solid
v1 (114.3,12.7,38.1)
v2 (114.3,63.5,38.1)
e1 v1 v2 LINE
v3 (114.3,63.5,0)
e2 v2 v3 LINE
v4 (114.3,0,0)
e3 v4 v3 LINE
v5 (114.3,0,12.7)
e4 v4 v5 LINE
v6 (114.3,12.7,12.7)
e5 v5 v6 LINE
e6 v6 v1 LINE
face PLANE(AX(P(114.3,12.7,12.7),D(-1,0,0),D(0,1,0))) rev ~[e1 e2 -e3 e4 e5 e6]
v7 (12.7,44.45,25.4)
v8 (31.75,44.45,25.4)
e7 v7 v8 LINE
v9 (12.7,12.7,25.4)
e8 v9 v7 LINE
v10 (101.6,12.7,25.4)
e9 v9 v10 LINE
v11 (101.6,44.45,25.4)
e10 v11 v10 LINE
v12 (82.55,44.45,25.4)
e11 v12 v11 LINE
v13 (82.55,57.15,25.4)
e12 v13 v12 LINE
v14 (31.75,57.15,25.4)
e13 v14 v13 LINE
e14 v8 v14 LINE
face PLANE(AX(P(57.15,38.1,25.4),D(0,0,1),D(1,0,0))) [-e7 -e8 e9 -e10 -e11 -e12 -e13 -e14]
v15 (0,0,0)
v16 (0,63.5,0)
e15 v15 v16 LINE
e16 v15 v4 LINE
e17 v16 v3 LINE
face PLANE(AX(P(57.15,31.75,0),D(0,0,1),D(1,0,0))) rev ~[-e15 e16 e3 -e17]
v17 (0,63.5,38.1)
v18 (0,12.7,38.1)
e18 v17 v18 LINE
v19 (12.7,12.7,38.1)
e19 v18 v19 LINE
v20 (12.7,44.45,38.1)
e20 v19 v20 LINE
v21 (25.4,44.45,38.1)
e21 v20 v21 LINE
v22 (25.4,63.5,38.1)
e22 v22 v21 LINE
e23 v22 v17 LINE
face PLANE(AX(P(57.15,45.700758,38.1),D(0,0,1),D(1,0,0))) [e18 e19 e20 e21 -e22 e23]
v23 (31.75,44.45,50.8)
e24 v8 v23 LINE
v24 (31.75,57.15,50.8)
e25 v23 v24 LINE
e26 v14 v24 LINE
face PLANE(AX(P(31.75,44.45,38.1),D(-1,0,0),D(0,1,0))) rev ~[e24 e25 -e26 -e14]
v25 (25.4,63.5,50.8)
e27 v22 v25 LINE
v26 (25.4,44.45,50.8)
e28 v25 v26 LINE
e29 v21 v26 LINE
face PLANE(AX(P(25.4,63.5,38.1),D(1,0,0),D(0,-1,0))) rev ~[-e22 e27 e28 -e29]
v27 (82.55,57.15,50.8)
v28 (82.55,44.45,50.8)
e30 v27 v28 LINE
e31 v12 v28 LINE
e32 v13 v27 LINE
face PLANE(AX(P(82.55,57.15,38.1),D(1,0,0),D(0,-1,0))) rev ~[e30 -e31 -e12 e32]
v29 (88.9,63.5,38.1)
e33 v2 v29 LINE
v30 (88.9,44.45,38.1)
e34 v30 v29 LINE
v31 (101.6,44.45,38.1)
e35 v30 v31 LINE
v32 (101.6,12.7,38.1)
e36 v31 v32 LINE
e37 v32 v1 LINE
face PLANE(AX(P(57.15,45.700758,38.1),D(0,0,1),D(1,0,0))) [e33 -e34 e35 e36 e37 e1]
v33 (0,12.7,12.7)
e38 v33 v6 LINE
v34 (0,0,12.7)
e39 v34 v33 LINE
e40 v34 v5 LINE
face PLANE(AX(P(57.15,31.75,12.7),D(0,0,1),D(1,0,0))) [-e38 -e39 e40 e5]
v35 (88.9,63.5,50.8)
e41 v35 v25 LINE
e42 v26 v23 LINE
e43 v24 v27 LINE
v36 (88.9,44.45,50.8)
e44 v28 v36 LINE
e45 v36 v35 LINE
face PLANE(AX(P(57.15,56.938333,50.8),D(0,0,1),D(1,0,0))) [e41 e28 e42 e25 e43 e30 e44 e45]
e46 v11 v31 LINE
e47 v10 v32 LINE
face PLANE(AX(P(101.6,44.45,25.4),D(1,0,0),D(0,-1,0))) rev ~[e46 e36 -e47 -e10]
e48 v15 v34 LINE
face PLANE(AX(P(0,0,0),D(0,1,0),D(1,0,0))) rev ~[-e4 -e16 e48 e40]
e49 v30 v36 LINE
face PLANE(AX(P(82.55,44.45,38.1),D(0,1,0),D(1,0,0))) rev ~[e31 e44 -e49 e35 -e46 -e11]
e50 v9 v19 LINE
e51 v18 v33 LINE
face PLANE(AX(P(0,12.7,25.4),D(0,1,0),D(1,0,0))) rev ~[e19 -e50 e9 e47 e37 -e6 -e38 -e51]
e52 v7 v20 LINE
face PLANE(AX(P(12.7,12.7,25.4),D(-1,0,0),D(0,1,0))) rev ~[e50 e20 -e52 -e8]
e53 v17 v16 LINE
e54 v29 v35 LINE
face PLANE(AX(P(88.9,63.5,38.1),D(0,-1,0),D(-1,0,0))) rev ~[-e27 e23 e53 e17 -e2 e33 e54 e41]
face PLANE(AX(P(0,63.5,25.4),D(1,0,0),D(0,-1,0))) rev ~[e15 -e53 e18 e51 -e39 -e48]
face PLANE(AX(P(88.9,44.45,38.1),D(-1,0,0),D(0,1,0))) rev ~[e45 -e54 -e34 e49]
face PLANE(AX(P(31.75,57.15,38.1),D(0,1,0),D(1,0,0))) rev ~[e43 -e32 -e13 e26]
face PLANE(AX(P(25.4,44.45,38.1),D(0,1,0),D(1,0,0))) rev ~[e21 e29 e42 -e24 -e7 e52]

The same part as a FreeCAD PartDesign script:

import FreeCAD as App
import Part
import Sketcher

V = App.Vector
Q = App.Units.Quantity

doc = App.newDocument("Part")
body = doc.addObject("PartDesign::Body", "Body")

sketch1 = body.newObject("Sketcher::SketchObject", "Sketch")
sketch1.AttachmentSupport = (doc.getObject("XY_Plane"), [""])
sketch1.MapMode = "FlatFace"
sketch1.addGeometry([
    Part.LineSegment(V(0, 64, 0), V(0, 0, 0)),
    Part.LineSegment(V(0, 0, 0), V(114, 0, 0)),
    Part.LineSegment(V(114, 0, 0), V(114, 64, 0)),
    Part.LineSegment(V(114, 64, 0), V(0, 64, 0)),
], False)
sketch1.addConstraint([
    Sketcher.Constraint("Coincident", 0, 2, 1, 1),
    Sketcher.Constraint("Coincident", 1, 2, 2, 1),
    Sketcher.Constraint("Coincident", 2, 2, 3, 1),
    Sketcher.Constraint("Coincident", 3, 2, 0, 1),
    Sketcher.Constraint("Vertical", 0),
    Sketcher.Constraint("Horizontal", 1),
    Sketcher.Constraint("Vertical", 2),
    Sketcher.Constraint("Horizontal", 3),
    Sketcher.Constraint("Coincident", 0, 2, -1, 1),
    Sketcher.Constraint("DistanceX", 1, 1, 1, 2, Q("4.5 in")),
    Sketcher.Constraint("DistanceY", 0, 2, 0, 1, Q("2.5 in")),
])
pad1 = body.newObject("PartDesign::Pad", "Pad")
pad1.Profile = sketch1
pad1.Length = Q("0.5 in")

sketch2 = body.newObject("Sketcher::SketchObject", "Sketch001")
sketch2.AttachmentSupport = (doc.getObject("XY_Plane"), [""])
sketch2.MapMode = "FlatFace"
sketch2.AttachmentOffset = App.Placement(V(0, 0, 0.5 * 25.4), App.Rotation())
sketch2.addGeometry([
    Part.LineSegment(V(0, 64, 0), V(0, 13, 0)),
    Part.LineSegment(V(0, 13, 0), V(114, 13, 0)),
    Part.LineSegment(V(114, 13, 0), V(114, 64, 0)),
    Part.LineSegment(V(114, 64, 0), V(0, 64, 0)),
], False)
sketch2.addConstraint([
    Sketcher.Constraint("Coincident", 0, 2, 1, 1),
    Sketcher.Constraint("Coincident", 1, 2, 2, 1),
    Sketcher.Constraint("Coincident", 2, 2, 3, 1),
    Sketcher.Constraint("Coincident", 3, 2, 0, 1),
    Sketcher.Constraint("Vertical", 0),
    Sketcher.Constraint("Horizontal", 1),
    Sketcher.Constraint("Vertical", 2),
    Sketcher.Constraint("Horizontal", 3),
    Sketcher.Constraint("PointOnObject", 0, 2, -2),
    Sketcher.Constraint("DistanceY", 0, 2, 0, 1, Q("2 in")),
    Sketcher.Constraint("DistanceX", 1, 1, 1, 2, Q("4.5 in")),
    Sketcher.Constraint("DistanceY", -1, 1, 0, 2, Q("0.5 in")),
])
pad2 = body.newObject("PartDesign::Pad", "Pad001")
pad2.Profile = sketch2
pad2.Length = Q("0.5 in")

sketch3 = body.newObject("Sketcher::SketchObject", "Sketch002")
sketch3.AttachmentSupport = (doc.getObject("XY_Plane"), [""])
sketch3.MapMode = "FlatFace"
sketch3.AttachmentOffset = App.Placement(V(0, 0, 1 * 25.4), App.Rotation())
sketch3.addGeometry([
    Part.LineSegment(V(0, 13, 0), V(13, 13, 0)),
    Part.LineSegment(V(13, 13, 0), V(13, 44, 0)),
    Part.LineSegment(V(13, 44, 0), V(32, 44, 0)),
    Part.LineSegment(V(32, 44, 0), V(32, 57, 0)),
    Part.LineSegment(V(32, 57, 0), V(83, 57, 0)),
    Part.LineSegment(V(83, 57, 0), V(83, 44, 0)),
    Part.LineSegment(V(83, 44, 0), V(102, 44, 0)),
    Part.LineSegment(V(102, 44, 0), V(102, 13, 0)),
    Part.LineSegment(V(102, 13, 0), V(114, 13, 0)),
    Part.LineSegment(V(114, 13, 0), V(114, 64, 0)),
    Part.LineSegment(V(114, 64, 0), V(0, 64, 0)),
    Part.LineSegment(V(0, 64, 0), V(0, 13, 0)),
], False)
sketch3.addConstraint([
    Sketcher.Constraint("Coincident", 0, 2, 1, 1),
    Sketcher.Constraint("Coincident", 1, 2, 2, 1),
    Sketcher.Constraint("Coincident", 2, 2, 3, 1),
    Sketcher.Constraint("Coincident", 3, 2, 4, 1),
    Sketcher.Constraint("Coincident", 4, 2, 5, 1),
    Sketcher.Constraint("Coincident", 5, 2, 6, 1),
    Sketcher.Constraint("Coincident", 6, 2, 7, 1),
    Sketcher.Constraint("Coincident", 7, 2, 8, 1),
    Sketcher.Constraint("Coincident", 8, 2, 9, 1),
    Sketcher.Constraint("Coincident", 9, 2, 10, 1),
    Sketcher.Constraint("Coincident", 10, 2, 11, 1),
    Sketcher.Constraint("Coincident", 11, 2, 0, 1),
    Sketcher.Constraint("Horizontal", 0),
    Sketcher.Constraint("Vertical", 1),
    Sketcher.Constraint("Horizontal", 2),
    Sketcher.Constraint("Vertical", 3),
    Sketcher.Constraint("Horizontal", 4),
    Sketcher.Constraint("Vertical", 5),
    Sketcher.Constraint("Horizontal", 6),
    Sketcher.Constraint("Vertical", 7),
    Sketcher.Constraint("Horizontal", 8),
    Sketcher.Constraint("Vertical", 9),
    Sketcher.Constraint("Horizontal", 10),
    Sketcher.Constraint("Vertical", 11),
    Sketcher.Constraint("PointOnObject", 10, 2, -2),
    Sketcher.Constraint("Horizontal", 2, 2, 5, 2),
    Sketcher.Constraint("Horizontal", 0, 2, 7, 2),
    Sketcher.Constraint("Equal", 2, 6),
    Sketcher.Constraint("Equal", 0, 8),
    Sketcher.Constraint("Equal", 8, 3),
    Sketcher.Constraint("Equal", 4, 9),
    Sketcher.Constraint("DistanceX", 4, 1, 4, 2, Q("2 in")),
    Sketcher.Constraint("DistanceX", 0, 1, 0, 2, Q("0.5 in")),
    Sketcher.Constraint("DistanceX", 10, 2, 10, 1, Q("4.5 in")),
    Sketcher.Constraint("DistanceY", 1, 1, 1, 2, Q("1.25 in")),
    Sketcher.Constraint("DistanceY", -1, 1, 0, 2, Q("0.5 in")),
])
pad3 = body.newObject("PartDesign::Pad", "Pad002")
pad3.Profile = sketch3
pad3.Length = Q("0.5 in")

sketch4 = body.newObject("Sketcher::SketchObject", "Sketch003")
sketch4.AttachmentSupport = (doc.getObject("XY_Plane"), [""])
sketch4.MapMode = "FlatFace"
sketch4.AttachmentOffset = App.Placement(V(0, 0, 1.5 * 25.4), App.Rotation())
sketch4.addGeometry([
    Part.LineSegment(V(25, 64, 0), V(25, 44, 0)),
    Part.LineSegment(V(25, 44, 0), V(32, 44, 0)),
    Part.LineSegment(V(32, 44, 0), V(32, 57, 0)),
    Part.LineSegment(V(32, 57, 0), V(83, 57, 0)),
    Part.LineSegment(V(83, 57, 0), V(83, 44, 0)),
    Part.LineSegment(V(83, 44, 0), V(89, 44, 0)),
    Part.LineSegment(V(89, 44, 0), V(89, 64, 0)),
    Part.LineSegment(V(89, 64, 0), V(25, 64, 0)),
], False)
sketch4.addConstraint([
    Sketcher.Constraint("Coincident", 0, 2, 1, 1),
    Sketcher.Constraint("Coincident", 1, 2, 2, 1),
    Sketcher.Constraint("Coincident", 2, 2, 3, 1),
    Sketcher.Constraint("Coincident", 3, 2, 4, 1),
    Sketcher.Constraint("Coincident", 4, 2, 5, 1),
    Sketcher.Constraint("Coincident", 5, 2, 6, 1),
    Sketcher.Constraint("Coincident", 6, 2, 7, 1),
    Sketcher.Constraint("Coincident", 7, 2, 0, 1),
    Sketcher.Constraint("Vertical", 0),
    Sketcher.Constraint("Horizontal", 1),
    Sketcher.Constraint("Vertical", 2),
    Sketcher.Constraint("Horizontal", 3),
    Sketcher.Constraint("Vertical", 4),
    Sketcher.Constraint("Horizontal", 5),
    Sketcher.Constraint("Vertical", 6),
    Sketcher.Constraint("Horizontal", 7),
    Sketcher.Constraint("Horizontal", 1, 2, 4, 2),
    Sketcher.Constraint("Equal", 1, 5),
    Sketcher.Constraint("DistanceX", 3, 1, 3, 2, Q("2 in")),
    Sketcher.Constraint("DistanceX", 7, 2, 7, 1, Q("2.5 in")),
    Sketcher.Constraint("DistanceY", 2, 1, 2, 2, Q("0.5 in")),
    Sketcher.Constraint("DistanceX", -1, 1, 0, 2, Q("1 in")),
    Sketcher.Constraint("DistanceY", 0, 2, 0, 1, Q("0.75 in")),
    Sketcher.Constraint("DistanceY", -1, 1, 6, 2, Q("2.5 in")),
])
pad4 = body.newObject("PartDesign::Pad", "Pad003")
pad4.Profile = sketch4
pad4.Length = Q("0.5 in")

doc.recompute()
